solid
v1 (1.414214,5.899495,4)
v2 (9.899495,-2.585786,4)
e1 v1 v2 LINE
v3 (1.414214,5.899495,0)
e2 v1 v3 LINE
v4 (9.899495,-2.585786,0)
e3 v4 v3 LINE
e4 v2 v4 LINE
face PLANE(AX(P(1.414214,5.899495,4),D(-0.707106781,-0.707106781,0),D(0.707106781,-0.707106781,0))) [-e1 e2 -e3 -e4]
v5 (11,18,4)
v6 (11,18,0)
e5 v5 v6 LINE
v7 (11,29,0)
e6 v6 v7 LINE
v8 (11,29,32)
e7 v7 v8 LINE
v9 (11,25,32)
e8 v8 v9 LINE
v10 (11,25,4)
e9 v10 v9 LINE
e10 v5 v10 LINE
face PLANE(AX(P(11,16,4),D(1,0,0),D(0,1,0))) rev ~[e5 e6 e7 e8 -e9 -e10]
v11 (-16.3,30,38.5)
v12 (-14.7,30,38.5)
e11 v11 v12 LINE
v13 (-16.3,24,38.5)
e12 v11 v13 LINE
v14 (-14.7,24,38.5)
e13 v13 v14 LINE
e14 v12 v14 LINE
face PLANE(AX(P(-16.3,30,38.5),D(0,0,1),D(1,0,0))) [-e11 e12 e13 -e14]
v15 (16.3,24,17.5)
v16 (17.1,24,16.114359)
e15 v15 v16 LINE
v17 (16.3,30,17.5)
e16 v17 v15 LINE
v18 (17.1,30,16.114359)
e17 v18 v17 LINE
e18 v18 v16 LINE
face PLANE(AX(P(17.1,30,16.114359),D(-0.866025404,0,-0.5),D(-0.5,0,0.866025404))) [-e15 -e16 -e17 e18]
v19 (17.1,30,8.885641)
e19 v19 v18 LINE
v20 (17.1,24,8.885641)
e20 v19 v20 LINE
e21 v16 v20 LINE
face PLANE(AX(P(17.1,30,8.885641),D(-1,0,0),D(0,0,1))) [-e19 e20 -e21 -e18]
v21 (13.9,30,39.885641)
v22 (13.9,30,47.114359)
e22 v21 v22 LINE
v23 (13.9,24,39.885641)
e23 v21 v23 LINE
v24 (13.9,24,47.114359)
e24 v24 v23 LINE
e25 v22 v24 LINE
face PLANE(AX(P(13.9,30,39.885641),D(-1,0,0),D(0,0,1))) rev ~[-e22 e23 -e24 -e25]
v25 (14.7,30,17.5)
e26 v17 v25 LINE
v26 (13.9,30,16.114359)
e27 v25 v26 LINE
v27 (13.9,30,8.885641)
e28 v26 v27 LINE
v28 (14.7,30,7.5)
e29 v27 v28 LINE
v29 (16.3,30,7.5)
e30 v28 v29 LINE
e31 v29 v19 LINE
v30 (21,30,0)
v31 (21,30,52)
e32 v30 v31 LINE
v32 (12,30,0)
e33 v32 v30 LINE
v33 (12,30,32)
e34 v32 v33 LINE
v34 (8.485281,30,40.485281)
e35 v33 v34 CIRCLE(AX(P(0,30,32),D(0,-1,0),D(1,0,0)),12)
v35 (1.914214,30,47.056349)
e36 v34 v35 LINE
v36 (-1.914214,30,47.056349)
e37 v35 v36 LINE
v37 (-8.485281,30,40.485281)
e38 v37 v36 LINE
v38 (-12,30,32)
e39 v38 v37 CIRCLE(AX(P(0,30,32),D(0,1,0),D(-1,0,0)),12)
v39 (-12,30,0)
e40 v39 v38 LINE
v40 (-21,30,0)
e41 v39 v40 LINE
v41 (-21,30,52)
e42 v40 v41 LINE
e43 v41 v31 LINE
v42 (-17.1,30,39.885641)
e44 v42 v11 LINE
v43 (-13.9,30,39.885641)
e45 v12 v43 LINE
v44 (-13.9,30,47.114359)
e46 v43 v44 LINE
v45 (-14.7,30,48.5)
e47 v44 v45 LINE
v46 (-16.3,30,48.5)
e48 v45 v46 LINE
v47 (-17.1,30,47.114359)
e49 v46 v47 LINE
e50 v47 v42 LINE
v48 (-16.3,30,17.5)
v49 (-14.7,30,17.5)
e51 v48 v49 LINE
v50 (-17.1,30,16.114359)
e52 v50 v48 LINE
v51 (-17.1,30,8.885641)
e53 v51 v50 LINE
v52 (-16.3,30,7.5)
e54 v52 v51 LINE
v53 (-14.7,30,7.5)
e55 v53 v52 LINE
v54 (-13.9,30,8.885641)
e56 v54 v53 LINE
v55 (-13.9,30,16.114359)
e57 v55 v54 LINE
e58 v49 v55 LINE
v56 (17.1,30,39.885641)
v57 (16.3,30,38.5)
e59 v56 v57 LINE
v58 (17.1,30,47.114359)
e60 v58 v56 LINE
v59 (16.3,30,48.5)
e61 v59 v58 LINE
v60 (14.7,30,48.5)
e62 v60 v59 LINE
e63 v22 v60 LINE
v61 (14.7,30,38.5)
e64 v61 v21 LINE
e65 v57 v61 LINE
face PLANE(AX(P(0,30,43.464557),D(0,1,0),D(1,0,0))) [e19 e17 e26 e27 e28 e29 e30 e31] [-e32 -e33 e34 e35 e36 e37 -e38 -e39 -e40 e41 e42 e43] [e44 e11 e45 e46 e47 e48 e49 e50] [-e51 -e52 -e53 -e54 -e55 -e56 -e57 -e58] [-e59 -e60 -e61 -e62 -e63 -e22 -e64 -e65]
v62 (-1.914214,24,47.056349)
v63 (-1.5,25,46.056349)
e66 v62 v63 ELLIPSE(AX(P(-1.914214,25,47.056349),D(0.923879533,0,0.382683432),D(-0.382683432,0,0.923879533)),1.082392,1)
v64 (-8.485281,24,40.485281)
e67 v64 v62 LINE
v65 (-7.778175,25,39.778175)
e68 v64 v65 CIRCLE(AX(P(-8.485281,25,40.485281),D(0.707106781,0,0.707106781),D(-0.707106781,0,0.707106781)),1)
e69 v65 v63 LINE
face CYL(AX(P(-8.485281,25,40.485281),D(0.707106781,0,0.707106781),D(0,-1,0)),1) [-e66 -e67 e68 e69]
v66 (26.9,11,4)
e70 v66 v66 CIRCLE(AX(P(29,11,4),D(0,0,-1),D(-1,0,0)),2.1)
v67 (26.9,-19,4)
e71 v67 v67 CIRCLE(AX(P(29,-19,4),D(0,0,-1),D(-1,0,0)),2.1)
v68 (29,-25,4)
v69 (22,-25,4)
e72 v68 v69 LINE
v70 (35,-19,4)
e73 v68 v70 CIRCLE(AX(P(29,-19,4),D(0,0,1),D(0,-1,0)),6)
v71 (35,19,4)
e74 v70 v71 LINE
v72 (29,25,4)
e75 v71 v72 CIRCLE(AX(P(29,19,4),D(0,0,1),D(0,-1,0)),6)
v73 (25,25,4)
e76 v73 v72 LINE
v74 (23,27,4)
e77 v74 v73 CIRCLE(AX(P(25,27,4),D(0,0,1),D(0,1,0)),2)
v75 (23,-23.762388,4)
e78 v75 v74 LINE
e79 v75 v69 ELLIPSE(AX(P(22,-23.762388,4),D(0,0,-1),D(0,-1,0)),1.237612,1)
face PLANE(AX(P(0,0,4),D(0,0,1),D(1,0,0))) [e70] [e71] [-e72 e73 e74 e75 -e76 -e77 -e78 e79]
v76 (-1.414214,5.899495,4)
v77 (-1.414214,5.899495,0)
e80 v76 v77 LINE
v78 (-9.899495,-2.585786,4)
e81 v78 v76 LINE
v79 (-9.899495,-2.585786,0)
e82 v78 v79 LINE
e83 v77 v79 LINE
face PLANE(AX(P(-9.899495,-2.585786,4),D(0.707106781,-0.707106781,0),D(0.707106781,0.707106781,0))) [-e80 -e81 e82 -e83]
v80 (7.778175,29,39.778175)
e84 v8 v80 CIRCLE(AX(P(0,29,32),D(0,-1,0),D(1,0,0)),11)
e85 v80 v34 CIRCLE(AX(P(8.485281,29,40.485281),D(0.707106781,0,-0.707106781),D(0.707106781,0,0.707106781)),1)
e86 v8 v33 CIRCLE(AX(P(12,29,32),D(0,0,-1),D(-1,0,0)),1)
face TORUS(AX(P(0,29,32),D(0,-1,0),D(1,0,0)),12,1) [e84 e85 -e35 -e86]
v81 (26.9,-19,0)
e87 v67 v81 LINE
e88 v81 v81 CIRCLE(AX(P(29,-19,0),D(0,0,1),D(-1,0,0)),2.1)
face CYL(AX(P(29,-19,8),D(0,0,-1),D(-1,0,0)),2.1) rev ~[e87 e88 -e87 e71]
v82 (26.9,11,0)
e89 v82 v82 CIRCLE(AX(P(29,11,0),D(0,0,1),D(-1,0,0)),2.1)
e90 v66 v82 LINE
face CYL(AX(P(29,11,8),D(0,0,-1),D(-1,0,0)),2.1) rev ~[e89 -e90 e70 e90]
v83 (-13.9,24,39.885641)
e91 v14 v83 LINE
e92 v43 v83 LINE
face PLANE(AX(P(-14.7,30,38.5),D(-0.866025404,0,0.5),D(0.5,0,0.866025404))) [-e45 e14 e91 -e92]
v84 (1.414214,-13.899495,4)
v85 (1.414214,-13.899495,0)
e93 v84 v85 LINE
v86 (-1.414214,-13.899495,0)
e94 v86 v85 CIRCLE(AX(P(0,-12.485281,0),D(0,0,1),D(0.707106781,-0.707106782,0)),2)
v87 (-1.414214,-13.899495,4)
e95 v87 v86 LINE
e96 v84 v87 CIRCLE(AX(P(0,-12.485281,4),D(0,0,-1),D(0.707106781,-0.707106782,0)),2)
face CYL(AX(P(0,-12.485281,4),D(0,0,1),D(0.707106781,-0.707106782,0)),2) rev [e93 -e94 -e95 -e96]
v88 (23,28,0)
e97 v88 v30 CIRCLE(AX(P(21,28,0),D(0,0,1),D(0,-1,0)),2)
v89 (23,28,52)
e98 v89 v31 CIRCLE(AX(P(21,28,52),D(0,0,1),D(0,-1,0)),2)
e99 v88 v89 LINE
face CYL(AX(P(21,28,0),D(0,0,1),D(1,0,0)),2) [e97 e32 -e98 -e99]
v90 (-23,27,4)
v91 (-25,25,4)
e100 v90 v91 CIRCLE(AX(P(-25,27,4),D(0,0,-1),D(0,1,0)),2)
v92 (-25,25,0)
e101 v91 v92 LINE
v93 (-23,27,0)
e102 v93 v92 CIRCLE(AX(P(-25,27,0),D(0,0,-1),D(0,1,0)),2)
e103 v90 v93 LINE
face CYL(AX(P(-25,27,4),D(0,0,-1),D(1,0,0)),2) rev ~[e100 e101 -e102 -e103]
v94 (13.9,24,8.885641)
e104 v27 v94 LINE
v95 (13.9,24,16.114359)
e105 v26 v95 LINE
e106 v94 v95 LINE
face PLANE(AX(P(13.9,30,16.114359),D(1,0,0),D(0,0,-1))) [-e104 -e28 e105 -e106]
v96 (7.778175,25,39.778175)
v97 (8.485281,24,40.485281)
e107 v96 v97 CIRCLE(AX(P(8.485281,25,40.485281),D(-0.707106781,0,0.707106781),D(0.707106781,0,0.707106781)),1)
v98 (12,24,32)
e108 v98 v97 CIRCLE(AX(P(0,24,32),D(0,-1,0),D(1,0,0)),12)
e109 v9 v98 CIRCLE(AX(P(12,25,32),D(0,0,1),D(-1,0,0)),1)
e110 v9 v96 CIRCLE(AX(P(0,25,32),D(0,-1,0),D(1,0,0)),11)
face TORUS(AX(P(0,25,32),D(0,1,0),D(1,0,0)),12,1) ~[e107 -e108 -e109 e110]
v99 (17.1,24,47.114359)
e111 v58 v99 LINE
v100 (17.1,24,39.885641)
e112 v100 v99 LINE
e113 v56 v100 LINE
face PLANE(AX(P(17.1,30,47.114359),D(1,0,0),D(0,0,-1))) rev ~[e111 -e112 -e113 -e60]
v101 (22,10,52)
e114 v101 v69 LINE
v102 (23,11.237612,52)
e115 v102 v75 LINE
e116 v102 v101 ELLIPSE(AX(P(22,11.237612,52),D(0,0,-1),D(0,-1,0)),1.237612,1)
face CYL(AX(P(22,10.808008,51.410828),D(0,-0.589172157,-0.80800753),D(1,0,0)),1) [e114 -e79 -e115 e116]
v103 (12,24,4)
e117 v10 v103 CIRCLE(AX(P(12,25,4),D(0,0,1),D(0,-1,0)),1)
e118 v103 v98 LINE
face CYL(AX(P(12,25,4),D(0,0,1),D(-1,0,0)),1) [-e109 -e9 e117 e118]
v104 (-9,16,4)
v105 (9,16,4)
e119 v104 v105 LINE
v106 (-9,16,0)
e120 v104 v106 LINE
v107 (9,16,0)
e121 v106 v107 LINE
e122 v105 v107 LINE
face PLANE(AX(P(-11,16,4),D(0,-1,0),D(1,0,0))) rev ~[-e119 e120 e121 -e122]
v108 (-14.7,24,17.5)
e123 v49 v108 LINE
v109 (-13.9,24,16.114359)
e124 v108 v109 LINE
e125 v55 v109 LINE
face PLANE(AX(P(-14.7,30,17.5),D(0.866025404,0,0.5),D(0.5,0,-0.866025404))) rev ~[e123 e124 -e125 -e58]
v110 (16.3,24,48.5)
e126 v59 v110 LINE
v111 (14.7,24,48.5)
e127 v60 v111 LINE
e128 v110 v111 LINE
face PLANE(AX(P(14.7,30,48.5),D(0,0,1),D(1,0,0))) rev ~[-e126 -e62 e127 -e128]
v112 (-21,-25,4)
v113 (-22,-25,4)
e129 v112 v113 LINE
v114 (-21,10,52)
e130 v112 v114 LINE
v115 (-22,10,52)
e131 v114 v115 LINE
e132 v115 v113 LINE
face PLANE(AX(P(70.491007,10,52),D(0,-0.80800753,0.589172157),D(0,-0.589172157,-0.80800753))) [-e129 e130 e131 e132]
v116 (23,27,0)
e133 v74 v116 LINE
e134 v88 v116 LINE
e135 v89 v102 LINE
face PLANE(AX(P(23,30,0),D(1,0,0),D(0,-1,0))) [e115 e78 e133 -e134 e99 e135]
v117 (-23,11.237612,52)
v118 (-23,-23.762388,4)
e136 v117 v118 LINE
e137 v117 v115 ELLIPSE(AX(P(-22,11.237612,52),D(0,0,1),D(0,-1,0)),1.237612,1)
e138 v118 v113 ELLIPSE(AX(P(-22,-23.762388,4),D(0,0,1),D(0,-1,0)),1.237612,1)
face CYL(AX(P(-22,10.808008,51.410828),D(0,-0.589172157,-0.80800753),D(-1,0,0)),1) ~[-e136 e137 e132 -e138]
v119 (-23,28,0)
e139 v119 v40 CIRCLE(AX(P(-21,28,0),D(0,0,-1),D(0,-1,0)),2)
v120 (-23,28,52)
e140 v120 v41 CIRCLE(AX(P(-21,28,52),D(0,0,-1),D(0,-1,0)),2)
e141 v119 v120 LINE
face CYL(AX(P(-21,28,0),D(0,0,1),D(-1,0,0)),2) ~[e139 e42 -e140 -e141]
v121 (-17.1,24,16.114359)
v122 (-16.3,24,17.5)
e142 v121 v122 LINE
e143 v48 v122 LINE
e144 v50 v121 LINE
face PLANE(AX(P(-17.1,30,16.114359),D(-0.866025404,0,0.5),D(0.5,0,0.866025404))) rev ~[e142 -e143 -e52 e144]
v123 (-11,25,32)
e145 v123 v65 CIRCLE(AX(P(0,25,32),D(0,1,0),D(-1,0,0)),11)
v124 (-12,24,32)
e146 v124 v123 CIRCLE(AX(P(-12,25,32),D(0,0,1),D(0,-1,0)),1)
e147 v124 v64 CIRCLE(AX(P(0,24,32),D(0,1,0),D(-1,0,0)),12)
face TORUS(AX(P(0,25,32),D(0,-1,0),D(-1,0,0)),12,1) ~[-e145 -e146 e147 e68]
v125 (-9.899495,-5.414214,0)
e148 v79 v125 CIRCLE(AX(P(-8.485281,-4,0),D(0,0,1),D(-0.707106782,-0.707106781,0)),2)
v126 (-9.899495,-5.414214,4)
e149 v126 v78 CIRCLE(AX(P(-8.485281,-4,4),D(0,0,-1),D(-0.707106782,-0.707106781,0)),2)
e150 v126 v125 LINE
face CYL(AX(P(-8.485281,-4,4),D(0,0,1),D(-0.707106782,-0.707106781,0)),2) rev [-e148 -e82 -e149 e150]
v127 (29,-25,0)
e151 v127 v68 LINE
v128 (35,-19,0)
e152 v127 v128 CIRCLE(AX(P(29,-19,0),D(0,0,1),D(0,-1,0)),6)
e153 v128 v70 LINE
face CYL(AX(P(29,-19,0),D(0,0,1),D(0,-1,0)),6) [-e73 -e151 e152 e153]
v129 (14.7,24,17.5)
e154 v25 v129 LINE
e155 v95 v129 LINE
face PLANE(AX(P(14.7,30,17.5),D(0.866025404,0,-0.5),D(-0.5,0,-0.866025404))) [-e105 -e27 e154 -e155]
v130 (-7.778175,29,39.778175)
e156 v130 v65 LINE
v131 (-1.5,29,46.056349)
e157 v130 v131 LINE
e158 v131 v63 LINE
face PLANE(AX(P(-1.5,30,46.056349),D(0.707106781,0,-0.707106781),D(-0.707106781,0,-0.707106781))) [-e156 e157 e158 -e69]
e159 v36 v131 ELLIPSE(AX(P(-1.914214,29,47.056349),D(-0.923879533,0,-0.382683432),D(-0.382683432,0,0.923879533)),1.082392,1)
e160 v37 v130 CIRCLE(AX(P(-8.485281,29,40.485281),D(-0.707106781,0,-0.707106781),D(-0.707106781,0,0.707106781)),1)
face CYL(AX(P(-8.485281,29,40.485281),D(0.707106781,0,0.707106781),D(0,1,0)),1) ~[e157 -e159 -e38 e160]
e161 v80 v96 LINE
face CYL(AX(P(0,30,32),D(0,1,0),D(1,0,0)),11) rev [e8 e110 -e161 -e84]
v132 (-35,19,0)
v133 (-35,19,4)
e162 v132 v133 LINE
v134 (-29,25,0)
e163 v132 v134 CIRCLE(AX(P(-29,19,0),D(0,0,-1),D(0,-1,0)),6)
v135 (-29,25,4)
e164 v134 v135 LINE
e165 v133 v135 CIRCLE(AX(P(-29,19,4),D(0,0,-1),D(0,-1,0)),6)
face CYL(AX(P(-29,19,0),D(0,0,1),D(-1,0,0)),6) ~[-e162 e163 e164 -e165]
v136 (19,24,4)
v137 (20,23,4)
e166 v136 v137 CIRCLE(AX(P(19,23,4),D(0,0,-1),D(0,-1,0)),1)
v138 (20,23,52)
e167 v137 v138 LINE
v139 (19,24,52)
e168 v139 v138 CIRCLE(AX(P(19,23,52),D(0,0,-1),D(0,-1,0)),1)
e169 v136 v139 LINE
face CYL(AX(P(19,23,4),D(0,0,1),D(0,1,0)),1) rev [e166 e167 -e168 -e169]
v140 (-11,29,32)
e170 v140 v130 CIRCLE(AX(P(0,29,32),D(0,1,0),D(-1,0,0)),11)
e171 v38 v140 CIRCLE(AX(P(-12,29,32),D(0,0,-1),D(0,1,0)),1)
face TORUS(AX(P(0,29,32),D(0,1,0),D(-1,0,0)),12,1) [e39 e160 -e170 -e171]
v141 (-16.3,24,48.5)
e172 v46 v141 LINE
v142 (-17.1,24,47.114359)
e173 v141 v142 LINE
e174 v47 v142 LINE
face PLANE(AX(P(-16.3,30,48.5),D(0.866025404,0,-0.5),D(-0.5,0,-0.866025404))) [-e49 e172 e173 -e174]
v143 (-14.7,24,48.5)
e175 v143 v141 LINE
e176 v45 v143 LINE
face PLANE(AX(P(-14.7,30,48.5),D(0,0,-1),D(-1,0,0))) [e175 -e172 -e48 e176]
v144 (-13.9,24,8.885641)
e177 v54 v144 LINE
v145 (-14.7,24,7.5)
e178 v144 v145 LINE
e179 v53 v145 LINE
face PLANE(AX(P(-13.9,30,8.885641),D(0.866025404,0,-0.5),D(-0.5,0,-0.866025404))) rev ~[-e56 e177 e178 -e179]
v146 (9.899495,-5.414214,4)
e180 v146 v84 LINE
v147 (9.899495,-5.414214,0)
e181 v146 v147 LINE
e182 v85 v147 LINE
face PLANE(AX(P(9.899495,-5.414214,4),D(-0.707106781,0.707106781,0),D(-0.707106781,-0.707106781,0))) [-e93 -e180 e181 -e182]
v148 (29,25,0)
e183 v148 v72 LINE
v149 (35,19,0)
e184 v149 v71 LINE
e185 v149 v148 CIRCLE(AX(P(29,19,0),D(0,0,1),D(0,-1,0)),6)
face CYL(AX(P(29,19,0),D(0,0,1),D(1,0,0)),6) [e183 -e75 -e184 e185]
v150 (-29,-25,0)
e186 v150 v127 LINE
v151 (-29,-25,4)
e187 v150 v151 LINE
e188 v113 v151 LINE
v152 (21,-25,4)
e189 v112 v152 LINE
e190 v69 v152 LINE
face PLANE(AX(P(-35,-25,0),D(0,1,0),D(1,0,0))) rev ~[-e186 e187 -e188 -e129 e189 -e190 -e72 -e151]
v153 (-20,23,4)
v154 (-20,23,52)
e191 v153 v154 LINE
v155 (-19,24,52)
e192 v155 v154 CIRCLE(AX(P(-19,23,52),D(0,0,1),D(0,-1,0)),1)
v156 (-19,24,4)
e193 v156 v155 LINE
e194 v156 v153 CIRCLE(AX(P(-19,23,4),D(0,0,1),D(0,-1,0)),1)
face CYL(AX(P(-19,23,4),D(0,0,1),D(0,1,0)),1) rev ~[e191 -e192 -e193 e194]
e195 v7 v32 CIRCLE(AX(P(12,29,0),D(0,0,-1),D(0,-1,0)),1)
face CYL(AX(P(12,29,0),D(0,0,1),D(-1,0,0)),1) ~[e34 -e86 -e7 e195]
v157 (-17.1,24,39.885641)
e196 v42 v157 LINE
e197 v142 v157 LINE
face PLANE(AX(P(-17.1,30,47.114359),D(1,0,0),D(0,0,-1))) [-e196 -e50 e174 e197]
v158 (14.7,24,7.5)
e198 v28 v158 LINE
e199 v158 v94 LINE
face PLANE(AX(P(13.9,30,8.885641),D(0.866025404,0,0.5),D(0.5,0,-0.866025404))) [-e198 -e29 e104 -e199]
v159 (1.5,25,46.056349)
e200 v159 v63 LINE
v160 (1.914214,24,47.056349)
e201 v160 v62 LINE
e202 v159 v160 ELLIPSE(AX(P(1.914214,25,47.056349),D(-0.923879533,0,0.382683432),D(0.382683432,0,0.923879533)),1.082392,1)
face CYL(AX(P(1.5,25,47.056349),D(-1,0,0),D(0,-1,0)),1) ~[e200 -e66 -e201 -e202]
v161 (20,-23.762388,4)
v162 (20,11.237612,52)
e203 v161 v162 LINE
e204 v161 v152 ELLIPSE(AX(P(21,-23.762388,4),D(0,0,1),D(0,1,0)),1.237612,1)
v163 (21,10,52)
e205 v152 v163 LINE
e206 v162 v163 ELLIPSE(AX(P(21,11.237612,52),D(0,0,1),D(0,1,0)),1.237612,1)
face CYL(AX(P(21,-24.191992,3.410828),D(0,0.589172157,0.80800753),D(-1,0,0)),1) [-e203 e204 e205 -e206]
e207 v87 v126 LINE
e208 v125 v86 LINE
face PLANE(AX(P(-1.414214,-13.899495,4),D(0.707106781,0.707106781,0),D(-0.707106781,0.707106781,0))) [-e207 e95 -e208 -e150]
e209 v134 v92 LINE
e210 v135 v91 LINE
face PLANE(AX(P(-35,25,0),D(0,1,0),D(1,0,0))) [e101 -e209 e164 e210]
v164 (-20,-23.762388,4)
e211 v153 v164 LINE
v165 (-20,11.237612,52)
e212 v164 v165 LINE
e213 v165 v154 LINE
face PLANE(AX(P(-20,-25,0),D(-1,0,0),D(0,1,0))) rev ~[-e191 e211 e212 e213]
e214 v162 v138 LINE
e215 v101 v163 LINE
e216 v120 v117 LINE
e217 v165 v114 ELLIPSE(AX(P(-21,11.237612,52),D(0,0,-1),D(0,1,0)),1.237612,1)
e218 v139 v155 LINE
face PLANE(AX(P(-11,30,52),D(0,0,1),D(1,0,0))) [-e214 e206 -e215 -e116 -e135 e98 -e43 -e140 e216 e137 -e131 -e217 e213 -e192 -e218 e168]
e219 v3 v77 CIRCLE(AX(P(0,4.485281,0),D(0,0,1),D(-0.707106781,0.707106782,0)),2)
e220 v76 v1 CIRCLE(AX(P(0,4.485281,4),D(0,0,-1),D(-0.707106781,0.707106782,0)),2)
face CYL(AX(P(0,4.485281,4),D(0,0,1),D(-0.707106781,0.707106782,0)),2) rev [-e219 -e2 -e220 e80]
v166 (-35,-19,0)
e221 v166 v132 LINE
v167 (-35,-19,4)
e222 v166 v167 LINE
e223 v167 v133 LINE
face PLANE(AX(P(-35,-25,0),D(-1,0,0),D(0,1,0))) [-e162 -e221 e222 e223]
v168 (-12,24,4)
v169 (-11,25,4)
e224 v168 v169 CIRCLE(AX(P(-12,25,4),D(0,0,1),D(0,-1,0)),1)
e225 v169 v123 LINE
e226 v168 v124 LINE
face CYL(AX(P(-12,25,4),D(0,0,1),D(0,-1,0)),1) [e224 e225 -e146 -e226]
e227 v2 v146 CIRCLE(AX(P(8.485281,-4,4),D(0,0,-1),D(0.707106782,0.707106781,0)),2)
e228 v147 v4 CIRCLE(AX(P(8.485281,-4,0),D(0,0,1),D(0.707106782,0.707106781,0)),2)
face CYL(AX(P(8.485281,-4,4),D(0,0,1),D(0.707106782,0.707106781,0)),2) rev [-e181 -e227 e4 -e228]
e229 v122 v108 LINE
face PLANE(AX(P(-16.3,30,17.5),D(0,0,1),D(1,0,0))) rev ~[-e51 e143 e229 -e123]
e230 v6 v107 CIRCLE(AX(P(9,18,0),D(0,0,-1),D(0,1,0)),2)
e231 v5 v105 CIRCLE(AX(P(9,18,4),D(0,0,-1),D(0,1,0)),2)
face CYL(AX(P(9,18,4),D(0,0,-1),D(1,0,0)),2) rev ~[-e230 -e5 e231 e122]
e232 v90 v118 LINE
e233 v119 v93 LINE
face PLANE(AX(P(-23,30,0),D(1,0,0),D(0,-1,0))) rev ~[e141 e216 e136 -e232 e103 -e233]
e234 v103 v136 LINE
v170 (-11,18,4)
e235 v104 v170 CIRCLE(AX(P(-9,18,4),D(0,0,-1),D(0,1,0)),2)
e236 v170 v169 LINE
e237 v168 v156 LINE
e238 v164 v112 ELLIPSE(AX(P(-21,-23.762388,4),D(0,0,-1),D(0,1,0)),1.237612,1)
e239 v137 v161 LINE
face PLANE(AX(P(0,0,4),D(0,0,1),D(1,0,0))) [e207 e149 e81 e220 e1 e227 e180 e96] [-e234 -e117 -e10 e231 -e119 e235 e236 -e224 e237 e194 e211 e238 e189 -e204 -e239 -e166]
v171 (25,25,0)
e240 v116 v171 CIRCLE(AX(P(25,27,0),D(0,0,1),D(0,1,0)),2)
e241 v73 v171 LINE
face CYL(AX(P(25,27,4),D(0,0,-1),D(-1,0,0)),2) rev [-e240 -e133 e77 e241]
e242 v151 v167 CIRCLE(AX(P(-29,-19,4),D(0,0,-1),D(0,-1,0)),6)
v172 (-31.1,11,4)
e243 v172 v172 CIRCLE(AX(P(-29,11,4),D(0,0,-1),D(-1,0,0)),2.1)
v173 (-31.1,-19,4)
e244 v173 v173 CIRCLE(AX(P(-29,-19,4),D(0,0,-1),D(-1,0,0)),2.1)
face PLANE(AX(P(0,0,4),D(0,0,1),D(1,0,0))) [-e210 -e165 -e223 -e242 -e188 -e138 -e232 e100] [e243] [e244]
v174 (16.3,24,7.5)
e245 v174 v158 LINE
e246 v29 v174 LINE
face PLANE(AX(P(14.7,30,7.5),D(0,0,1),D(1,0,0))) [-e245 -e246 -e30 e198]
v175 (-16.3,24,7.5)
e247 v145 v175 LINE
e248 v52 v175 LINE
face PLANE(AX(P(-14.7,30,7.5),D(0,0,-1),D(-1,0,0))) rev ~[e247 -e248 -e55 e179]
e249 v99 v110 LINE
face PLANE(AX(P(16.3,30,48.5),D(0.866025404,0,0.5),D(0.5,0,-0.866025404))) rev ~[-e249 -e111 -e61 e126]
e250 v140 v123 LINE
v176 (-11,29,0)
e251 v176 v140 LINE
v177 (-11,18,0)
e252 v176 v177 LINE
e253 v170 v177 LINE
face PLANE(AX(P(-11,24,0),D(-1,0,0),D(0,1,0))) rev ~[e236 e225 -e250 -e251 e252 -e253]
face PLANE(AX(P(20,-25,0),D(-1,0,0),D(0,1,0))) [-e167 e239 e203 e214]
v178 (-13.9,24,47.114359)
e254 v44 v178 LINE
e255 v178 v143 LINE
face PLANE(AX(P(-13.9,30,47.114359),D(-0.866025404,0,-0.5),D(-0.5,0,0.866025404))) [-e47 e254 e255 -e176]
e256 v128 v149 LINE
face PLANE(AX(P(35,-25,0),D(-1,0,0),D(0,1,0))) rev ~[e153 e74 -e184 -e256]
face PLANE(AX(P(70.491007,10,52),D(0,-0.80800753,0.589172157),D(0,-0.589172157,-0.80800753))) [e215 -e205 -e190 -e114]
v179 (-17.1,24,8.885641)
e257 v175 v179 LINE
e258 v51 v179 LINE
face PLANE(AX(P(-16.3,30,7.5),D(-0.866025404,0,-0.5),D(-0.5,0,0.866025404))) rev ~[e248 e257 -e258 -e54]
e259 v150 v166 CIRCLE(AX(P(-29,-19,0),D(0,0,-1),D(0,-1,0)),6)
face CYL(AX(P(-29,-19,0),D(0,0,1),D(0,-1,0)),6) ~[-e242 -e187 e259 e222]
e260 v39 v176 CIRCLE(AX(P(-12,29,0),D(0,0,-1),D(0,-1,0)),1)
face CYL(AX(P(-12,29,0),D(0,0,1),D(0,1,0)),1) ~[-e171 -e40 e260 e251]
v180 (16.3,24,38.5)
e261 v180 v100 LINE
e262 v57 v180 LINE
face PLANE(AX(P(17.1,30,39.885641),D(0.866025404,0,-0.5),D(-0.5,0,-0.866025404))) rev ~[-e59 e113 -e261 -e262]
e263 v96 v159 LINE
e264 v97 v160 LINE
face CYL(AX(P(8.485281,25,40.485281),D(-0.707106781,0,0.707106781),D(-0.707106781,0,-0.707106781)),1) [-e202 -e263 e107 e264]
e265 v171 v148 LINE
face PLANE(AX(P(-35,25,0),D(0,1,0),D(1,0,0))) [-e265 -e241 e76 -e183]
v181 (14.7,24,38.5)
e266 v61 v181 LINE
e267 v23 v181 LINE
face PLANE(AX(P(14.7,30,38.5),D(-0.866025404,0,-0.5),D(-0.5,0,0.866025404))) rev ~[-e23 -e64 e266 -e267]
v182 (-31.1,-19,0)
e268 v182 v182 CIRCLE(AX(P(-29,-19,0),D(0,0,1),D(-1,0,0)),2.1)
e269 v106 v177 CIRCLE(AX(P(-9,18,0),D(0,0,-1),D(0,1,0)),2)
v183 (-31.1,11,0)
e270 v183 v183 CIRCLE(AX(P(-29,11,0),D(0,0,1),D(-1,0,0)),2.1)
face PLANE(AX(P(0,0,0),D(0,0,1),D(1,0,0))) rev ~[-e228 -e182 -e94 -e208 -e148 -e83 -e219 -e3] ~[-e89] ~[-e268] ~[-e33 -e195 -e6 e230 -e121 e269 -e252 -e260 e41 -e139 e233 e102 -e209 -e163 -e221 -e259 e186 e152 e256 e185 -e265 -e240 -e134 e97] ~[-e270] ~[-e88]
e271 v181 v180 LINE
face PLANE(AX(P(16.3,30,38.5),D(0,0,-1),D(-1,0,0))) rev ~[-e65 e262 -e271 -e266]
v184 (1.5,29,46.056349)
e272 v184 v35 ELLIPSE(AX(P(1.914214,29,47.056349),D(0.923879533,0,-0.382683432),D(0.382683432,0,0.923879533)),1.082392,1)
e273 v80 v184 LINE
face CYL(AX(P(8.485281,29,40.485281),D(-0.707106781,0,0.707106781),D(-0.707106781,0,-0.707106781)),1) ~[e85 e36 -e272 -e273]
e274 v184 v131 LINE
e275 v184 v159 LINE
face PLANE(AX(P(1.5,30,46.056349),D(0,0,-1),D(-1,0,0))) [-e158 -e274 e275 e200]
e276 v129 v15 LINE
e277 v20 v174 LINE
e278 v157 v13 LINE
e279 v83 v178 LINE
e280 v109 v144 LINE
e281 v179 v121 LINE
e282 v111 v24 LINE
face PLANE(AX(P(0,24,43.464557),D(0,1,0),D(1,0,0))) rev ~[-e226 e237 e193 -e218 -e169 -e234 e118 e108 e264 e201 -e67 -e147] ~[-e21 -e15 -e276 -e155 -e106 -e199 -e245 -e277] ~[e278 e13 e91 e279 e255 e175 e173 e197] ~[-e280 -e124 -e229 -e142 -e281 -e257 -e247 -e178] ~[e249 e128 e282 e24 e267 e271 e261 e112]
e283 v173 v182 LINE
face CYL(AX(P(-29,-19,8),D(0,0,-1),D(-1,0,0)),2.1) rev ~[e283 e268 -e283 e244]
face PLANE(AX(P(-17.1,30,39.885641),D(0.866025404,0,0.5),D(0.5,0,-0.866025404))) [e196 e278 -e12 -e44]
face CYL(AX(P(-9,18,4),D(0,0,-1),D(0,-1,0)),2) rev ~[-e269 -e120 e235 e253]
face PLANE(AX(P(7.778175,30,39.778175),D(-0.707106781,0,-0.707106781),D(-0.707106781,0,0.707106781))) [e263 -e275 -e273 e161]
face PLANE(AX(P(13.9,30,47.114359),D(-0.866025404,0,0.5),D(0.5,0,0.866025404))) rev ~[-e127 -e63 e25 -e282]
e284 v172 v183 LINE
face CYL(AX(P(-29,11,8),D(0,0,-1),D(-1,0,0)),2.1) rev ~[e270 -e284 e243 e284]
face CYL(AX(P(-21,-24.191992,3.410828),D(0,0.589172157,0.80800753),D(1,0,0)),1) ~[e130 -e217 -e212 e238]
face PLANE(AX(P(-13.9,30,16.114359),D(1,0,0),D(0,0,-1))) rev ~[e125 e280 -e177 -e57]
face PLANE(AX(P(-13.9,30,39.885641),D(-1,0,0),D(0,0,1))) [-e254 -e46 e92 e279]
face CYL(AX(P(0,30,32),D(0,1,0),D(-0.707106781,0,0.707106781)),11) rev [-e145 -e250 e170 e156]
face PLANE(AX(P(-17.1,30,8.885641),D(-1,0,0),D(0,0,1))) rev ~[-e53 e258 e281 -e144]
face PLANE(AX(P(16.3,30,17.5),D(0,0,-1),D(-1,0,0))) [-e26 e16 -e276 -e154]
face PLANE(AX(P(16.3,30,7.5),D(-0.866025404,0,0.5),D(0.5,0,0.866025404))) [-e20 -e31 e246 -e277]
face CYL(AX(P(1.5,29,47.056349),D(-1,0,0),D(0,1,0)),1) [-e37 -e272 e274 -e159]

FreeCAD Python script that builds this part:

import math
import FreeCAD as App
import Part
import Sketcher

V = App.Vector
Q = App.Units.Quantity


def edges_at(feature, points):
    """Names of the edges that pass closest to the given points."""
    edges = feature.Shape.Edges
    near = lambda p: min(range(len(edges)), key=lambda i: edges[i].distToShape(Part.Vertex(*p))[0])
    return sorted({f"Edge{near(p) + 1}" for p in points})

doc = App.newDocument("Part")
body = doc.addObject("PartDesign::Body", "Body")

# Sketch on XY plane
sketch1 = body.newObject("Sketcher::SketchObject", "Sketch")
sketch1.AttachmentSupport = (doc.getObject("XY_Plane"), [""])
sketch1.MapMode = "FlatFace"
sketch1.addGeometry([
    Part.LineSegment(V(-35, 25, 0), V(-35, -25, 0)),
    Part.LineSegment(V(-35, -25, 0), V(35, -25, 0)),
    Part.LineSegment(V(35, -25, 0), V(35, 25, 0)),
    Part.LineSegment(V(35, 25, 0), V(-35, 25, 0)),
], False)
sketch1.addConstraint([
    Sketcher.Constraint("Coincident", 0, 2, 1, 1),
    Sketcher.Constraint("Coincident", 1, 2, 2, 1),
    Sketcher.Constraint("Coincident", 2, 2, 3, 1),
    Sketcher.Constraint("Coincident", 3, 2, 0, 1),
    Sketcher.Constraint("Vertical", 0),
    Sketcher.Constraint("Horizontal", 1),
    Sketcher.Constraint("Vertical", 2),
    Sketcher.Constraint("Horizontal", 3),
    Sketcher.Constraint("Symmetric", 0, 2, 2, 2, -1, 1),
    Sketcher.Constraint("DistanceX", 1, 1, 1, 2, Q("70 mm")),
    Sketcher.Constraint("DistanceY", 0, 2, 0, 1, Q("50 mm")),
])
pad1 = body.newObject("PartDesign::Pad", "Pad")
pad1.Profile = sketch1
pad1.Length = 4

# Sketch on XY plane
sketch2 = body.newObject("Sketcher::SketchObject", "Sketch001")
sketch2.AttachmentSupport = (doc.getObject("XY_Plane"), [""])
sketch2.MapMode = "FlatFace"
sketch2.addGeometry([
    Part.LineSegment(V(-23, -25, 0), V(-20, -25, 0)),  # 0
    Part.LineSegment(V(-20, -25, 0), V(-20, 24, 0)),  # 1
    Part.LineSegment(V(-20, 24, 0), V(-11, 24, 0)),  # 2
    Part.LineSegment(V(-11, 24, 0), V(-11, 30, 0)),  # 3
    Part.LineSegment(V(-11, 30, 0), V(-23, 30, 0)),  # 4
    Part.LineSegment(V(-23, 30, 0), V(-23, -25, 0)),  # 5
    Part.LineSegment(V(11, 30, 0), V(11, 24, 0)),  # 6
    Part.LineSegment(V(11, 24, 0), V(20, 24, 0)),  # 7
    Part.LineSegment(V(20, 24, 0), V(20, -25, 0)),  # 8
    Part.LineSegment(V(20, -25, 0), V(23, -25, 0)),  # 9
    Part.LineSegment(V(23, -25, 0), V(23, 30, 0)),  # 10
    Part.LineSegment(V(23, 30, 0), V(11, 30, 0)),  # 11
], False)
sketch2.addConstraint([
    Sketcher.Constraint("Coincident", 0, 2, 1, 1),
    Sketcher.Constraint("Coincident", 1, 2, 2, 1),
    Sketcher.Constraint("Coincident", 2, 2, 3, 1),
    Sketcher.Constraint("Coincident", 3, 2, 4, 1),
    Sketcher.Constraint("Coincident", 4, 2, 5, 1),
    Sketcher.Constraint("Coincident", 5, 2, 0, 1),
    Sketcher.Constraint("Coincident", 6, 2, 7, 1),
    Sketcher.Constraint("Coincident", 7, 2, 8, 1),
    Sketcher.Constraint("Coincident", 8, 2, 9, 1),
    Sketcher.Constraint("Coincident", 9, 2, 10, 1),
    Sketcher.Constraint("Coincident", 10, 2, 11, 1),
    Sketcher.Constraint("Coincident", 11, 2, 6, 1),
    Sketcher.Constraint("Horizontal", 0),
    Sketcher.Constraint("Vertical", 1),
    Sketcher.Constraint("Horizontal", 2),
    Sketcher.Constraint("Vertical", 3),
    Sketcher.Constraint("Horizontal", 4),
    Sketcher.Constraint("Vertical", 5),
    Sketcher.Constraint("Vertical", 6),
    Sketcher.Constraint("Horizontal", 7),
    Sketcher.Constraint("Vertical", 8),
    Sketcher.Constraint("Horizontal", 9),
    Sketcher.Constraint("Vertical", 10),
    Sketcher.Constraint("Horizontal", 11),
    Sketcher.Constraint("Symmetric", 2, 2, 6, 2, -2),
    Sketcher.Constraint("Symmetric", 0, 2, 8, 2, -2),
    Sketcher.Constraint("Symmetric", 4, 2, 10, 2, -2),
    Sketcher.Constraint("DistanceX", 0, 1, 0, 2, Q("3 mm")),
    Sketcher.Constraint("DistanceX", 2, 1, 2, 2, Q("9 mm")),
    Sketcher.Constraint("DistanceY", 1, 1, 1, 2, Q("49 mm")),
    Sketcher.Constraint("DistanceY", 3, 1, 3, 2, Q("6 mm")),
    Sketcher.Constraint("DistanceX", 0, 2, -1, 1, Q("20 mm")),
    Sketcher.Constraint("DistanceY", 0, 2, -1, 1, Q("25 mm")),
])
pad2 = body.newObject("PartDesign::Pad", "Pad001")
pad2.Profile = sketch2
pad2.Length = 52

# Sketch on YZ plane
sketch3 = body.newObject("Sketcher::SketchObject", "Sketch002")
sketch3.AttachmentSupport = (doc.getObject("YZ_Plane"), [""])
sketch3.MapMode = "FlatFace"
sketch3.addGeometry([
    Part.LineSegment(V(102, 178, 0), V(10, 52, 0)),  # 0
    Part.LineSegment(V(10, 52, 0), V(-25, 4, 0)),  # 1
    Part.LineSegment(V(-25, 4, 0), V(-117, -122, 0)),  # 2
    Part.LineSegment(V(-117, -122, 0), V(-369, 62, 0)),  # 3
    Part.LineSegment(V(-369, 62, 0), V(-150, 362, 0)),  # 4
    Part.LineSegment(V(-150, 362, 0), V(102, 178, 0)),  # 5
], False)
sketch3.addConstraint([
    Sketcher.Constraint("Coincident", 0, 2, 1, 1),
    Sketcher.Constraint("Coincident", 1, 2, 2, 1),
    Sketcher.Constraint("Coincident", 2, 2, 3, 1),
    Sketcher.Constraint("Coincident", 3, 2, 4, 1),
    Sketcher.Constraint("Coincident", 4, 2, 5, 1),
    Sketcher.Constraint("Coincident", 5, 2, 0, 1),
    Sketcher.Constraint("Parallel", 0, 1),
    Sketcher.Constraint("Parallel", 1, 2),
    Sketcher.Constraint("Perpendicular", 2, 3),
    Sketcher.Constraint("Perpendicular", 3, 4),
    Sketcher.Constraint("Perpendicular", 4, 5),
    Sketcher.Constraint("Equal", 0, 2),
    Sketcher.Constraint("Distance", 0, Q("156 mm")),
    Sketcher.Constraint("Distance", 3, Q("312 mm")),
    Sketcher.Constraint("DistanceX", -1, 1, 0, 2, Q("10 mm")),
    Sketcher.Constraint("DistanceY", -1, 1, 0, 2, Q("52 mm")),
    Sketcher.Constraint("DistanceX", 1, 2, -1, 1, Q("25 mm")),
    Sketcher.Constraint("DistanceY", -1, 1, 1, 2, Q("4 mm")),
])
pocket1 = body.newObject("PartDesign::Pocket", "Pocket")
pocket1.Profile = sketch3
pocket1.Type = "ThroughAll"
pocket1.Midplane = True
doc.recompute()

fillet = body.newObject("PartDesign::Fillet", "Fillet")
fillet.Base = (pocket1, edges_at(pocket1, [
    (35, -25, 2),
    (-35, -25, 2),
    (-35, 25, 2),
    (35, 25, 2),
]))
fillet.Radius = 6

# Sketch on XZ plane
sketch4 = body.newObject("Sketcher::SketchObject", "Sketch003")
sketch4.AttachmentSupport = (doc.getObject("XZ_Plane"), [""])
sketch4.MapMode = "FlatFace"
sketch4.AttachmentOffset = App.Placement(V(0, 0, -30), App.Rotation())
sketch4.addGeometry([
    Part.LineSegment(V(-17.1, 39.9, 0), V(-17.1, 47.1, 0)),  # 0
    Part.LineSegment(V(-17.1, 47.1, 0), V(-16.3, 48.5, 0)),  # 1
    Part.LineSegment(V(-16.3, 48.5, 0), V(-14.7, 48.5, 0)),  # 2
    Part.LineSegment(V(-14.7, 48.5, 0), V(-13.9, 47.1, 0)),  # 3
    Part.LineSegment(V(-13.9, 47.1, 0), V(-13.9, 39.9, 0)),  # 4
    Part.LineSegment(V(-13.9, 39.9, 0), V(-14.7, 38.5, 0)),  # 5
    Part.LineSegment(V(-14.7, 38.5, 0), V(-16.3, 38.5, 0)),  # 6
    Part.LineSegment(V(-16.3, 38.5, 0), V(-17.1, 39.9, 0)),  # 7
    Part.LineSegment(V(16.3, 48.5, 0), V(17.1, 47.1, 0)),  # 8
    Part.LineSegment(V(17.1, 47.1, 0), V(17.1, 39.9, 0)),  # 9
    Part.LineSegment(V(17.1, 39.9, 0), V(16.3, 38.5, 0)),  # 10
    Part.LineSegment(V(16.3, 38.5, 0), V(14.7, 38.5, 0)),  # 11
    Part.LineSegment(V(14.7, 38.5, 0), V(13.9, 39.9, 0)),  # 12
    Part.LineSegment(V(13.9, 39.9, 0), V(13.9, 47.1, 0)),  # 13
    Part.LineSegment(V(13.9, 47.1, 0), V(14.7, 48.5, 0)),  # 14
    Part.LineSegment(V(14.7, 48.5, 0), V(16.3, 48.5, 0)),  # 15
    Part.LineSegment(V(17.1, 16.1, 0), V(17.1, 8.9, 0)),  # 16
    Part.LineSegment(V(17.1, 8.9, 0), V(16.3, 7.5, 0)),  # 17
    Part.LineSegment(V(16.3, 7.5, 0), V(14.7, 7.5, 0)),  # 18
    Part.LineSegment(V(14.7, 7.5, 0), V(13.9, 8.9, 0)),  # 19
    Part.LineSegment(V(13.9, 8.9, 0), V(13.9, 16.1, 0)),  # 20
    Part.LineSegment(V(13.9, 16.1, 0), V(14.7, 17.5, 0)),  # 21
    Part.LineSegment(V(14.7, 17.5, 0), V(16.3, 17.5, 0)),  # 22
    Part.LineSegment(V(16.3, 17.5, 0), V(17.1, 16.1, 0)),  # 23
    Part.LineSegment(V(-16.3, 7.5, 0), V(-17.1, 8.9, 0)),  # 24
    Part.LineSegment(V(-17.1, 8.9, 0), V(-17.1, 16.1, 0)),  # 25
    Part.LineSegment(V(-17.1, 16.1, 0), V(-16.3, 17.5, 0)),  # 26
    Part.LineSegment(V(-16.3, 17.5, 0), V(-14.7, 17.5, 0)),  # 27
    Part.LineSegment(V(-14.7, 17.5, 0), V(-13.9, 16.1, 0)),  # 28
    Part.LineSegment(V(-13.9, 16.1, 0), V(-13.9, 8.9, 0)),  # 29
    Part.LineSegment(V(-13.9, 8.9, 0), V(-14.7, 7.5, 0)),  # 30
    Part.LineSegment(V(-14.7, 7.5, 0), V(-16.3, 7.5, 0)),  # 31
], False)
sketch4.addConstraint([
    Sketcher.Constraint("Coincident", 0, 2, 1, 1),
    Sketcher.Constraint("Coincident", 1, 2, 2, 1),
    Sketcher.Constraint("Coincident", 2, 2, 3, 1),
    Sketcher.Constraint("Coincident", 3, 2, 4, 1),
    Sketcher.Constraint("Coincident", 4, 2, 5, 1),
    Sketcher.Constraint("Coincident", 5, 2, 6, 1),
    Sketcher.Constraint("Coincident", 6, 2, 7, 1),
    Sketcher.Constraint("Coincident", 7, 2, 0, 1),
    Sketcher.Constraint("Coincident", 8, 2, 9, 1),
    Sketcher.Constraint("Coincident", 9, 2, 10, 1),
    Sketcher.Constraint("Coincident", 10, 2, 11, 1),
    Sketcher.Constraint("Coincident", 11, 2, 12, 1),
    Sketcher.Constraint("Coincident", 12, 2, 13, 1),
    Sketcher.Constraint("Coincident", 13, 2, 14, 1),
    Sketcher.Constraint("Coincident", 14, 2, 15, 1),
    Sketcher.Constraint("Coincident", 15, 2, 8, 1),
    Sketcher.Constraint("Coincident", 16, 2, 17, 1),
    Sketcher.Constraint("Coincident", 17, 2, 18, 1),
    Sketcher.Constraint("Coincident", 18, 2, 19, 1),
    Sketcher.Constraint("Coincident", 19, 2, 20, 1),
    Sketcher.Constraint("Coincident", 20, 2, 21, 1),
    Sketcher.Constraint("Coincident", 21, 2, 22, 1),
    Sketcher.Constraint("Coincident", 22, 2, 23, 1),
    Sketcher.Constraint("Coincident", 23, 2, 16, 1),
    Sketcher.Constraint("Coincident", 24, 2, 25, 1),
    Sketcher.Constraint("Coincident", 25, 2, 26, 1),
    Sketcher.Constraint("Coincident", 26, 2, 27, 1),
    Sketcher.Constraint("Coincident", 27, 2, 28, 1),
    Sketcher.Constraint("Coincident", 28, 2, 29, 1),
    Sketcher.Constraint("Coincident", 29, 2, 30, 1),
    Sketcher.Constraint("Coincident", 30, 2, 31, 1),
    Sketcher.Constraint("Coincident", 31, 2, 24, 1),
    Sketcher.Constraint("Vertical", 0),
    Sketcher.Constraint("Horizontal", 2),
    Sketcher.Constraint("Vertical", 4),
    Sketcher.Constraint("Horizontal", 6),
    Sketcher.Constraint("Vertical", 9),
    Sketcher.Constraint("Horizontal", 11),
    Sketcher.Constraint("Vertical", 13),
    Sketcher.Constraint("Horizontal", 15),
    Sketcher.Constraint("Vertical", 16),
    Sketcher.Constraint("Horizontal", 18),
    Sketcher.Constraint("Vertical", 20),
    Sketcher.Constraint("Horizontal", 22),
    Sketcher.Constraint("Vertical", 25),
    Sketcher.Constraint("Horizontal", 27),
    Sketcher.Constraint("Vertical", 29),
    Sketcher.Constraint("Horizontal", 31),
    Sketcher.Constraint("Symmetric", 0, 2, 8, 2, -2),
    Sketcher.Constraint("Symmetric", 6, 2, 10, 2, -2),
    Sketcher.Constraint("Symmetric", 4, 2, 12, 2, -2),
    Sketcher.Constraint("Symmetric", 2, 2, 14, 2, -2),
    Sketcher.Constraint("Symmetric", 16, 2, 24, 2, -2),
    Sketcher.Constraint("Symmetric", 22, 2, 26, 2, -2),
    Sketcher.Constraint("Symmetric", 20, 2, 28, 2, -2),
    Sketcher.Constraint("Symmetric", 18, 2, 30, 2, -2),
    Sketcher.Constraint("Parallel", 1, 5),
    Sketcher.Constraint("Parallel", 3, 7),
    Sketcher.Constraint("Parallel", 7, 8),
    Sketcher.Constraint("Parallel", 5, 10),
    Sketcher.Constraint("Parallel", 8, 12),
    Sketcher.Constraint("Parallel", 10, 14),
    Sketcher.Constraint("Parallel", 14, 17),
    Sketcher.Constraint("Parallel", 12, 19),
    Sketcher.Constraint("Parallel", 17, 21),
    Sketcher.Constraint("Parallel", 19, 23),
    Sketcher.Constraint("Parallel", 23, 24),
    Sketcher.Constraint("Parallel", 21, 26),
    Sketcher.Constraint("Parallel", 24, 28),
    Sketcher.Constraint("Parallel", 26, 30),
    Sketcher.Constraint("Horizontal", 0, 2, 3, 2),
    Sketcher.Constraint("Horizontal", 4, 2, 7, 2),
    Sketcher.Constraint("Horizontal", 7, 2, 9, 2),
    Sketcher.Constraint("Horizontal", 16, 2, 19, 2),
    Sketcher.Constraint("Horizontal", 20, 2, 23, 2),
    Sketcher.Constraint("Vertical", 2, 2, 5, 2),
    Sketcher.Constraint("Vertical", 9, 2, 16, 2),
    Sketcher.Constraint("Vertical", 15, 2, 17, 2),
    Sketcher.Constraint("Vertical", 14, 2, 18, 2),
    Sketcher.Constraint("Vertical", 18, 2, 21, 2),
    Sketcher.Constraint("Equal", 13, 16),
    Sketcher.Constraint("Angle", 1, Q("60 deg")),
    Sketcher.Constraint("DistanceX", 2, 1, 2, 2, Q("1.6 mm")),
    Sketcher.Constraint("DistanceY", 5, 2, 2, 2, Q("10 mm")),
    Sketcher.Constraint("DistanceX", 3, 2, 8, 2, Q("31 mm")),
    Sketcher.Constraint("DistanceY", 16, 2, 9, 2, Q("31 mm")),
    Sketcher.Constraint("Distance", 1, Q("1.6 mm")),
    Sketcher.Constraint("DistanceY", -1, 1, 1, 2, Q("48.5 mm")),
])
pocket2 = body.newObject("PartDesign::Pocket", "Pocket001")
pocket2.Profile = sketch4
pocket2.Type = "ThroughAll"
pocket2.Reversed = True

# Sketch on XY plane
sketch5 = body.newObject("Sketcher::SketchObject", "Sketch004")
sketch5.AttachmentSupport = (doc.getObject("XY_Plane"), [""])
sketch5.MapMode = "FlatFace"
sketch5.AttachmentOffset = App.Placement(V(0, 0, 4), App.Rotation())
sketch5.addGeometry([
    Part.LineSegment(V(-11, 25, 0), V(-11, 16, 0)),
    Part.LineSegment(V(-11, 16, 0), V(11, 16, 0)),
    Part.LineSegment(V(11, 16, 0), V(11, 25, 0)),
    Part.LineSegment(V(11, 25, 0), V(-11, 25, 0)),
], False)
sketch5.addConstraint([
    Sketcher.Constraint("Coincident", 0, 2, 1, 1),
    Sketcher.Constraint("Coincident", 1, 2, 2, 1),
    Sketcher.Constraint("Coincident", 2, 2, 3, 1),
    Sketcher.Constraint("Coincident", 3, 2, 0, 1),
    Sketcher.Constraint("Vertical", 0),
    Sketcher.Constraint("Horizontal", 1),
    Sketcher.Constraint("Vertical", 2),
    Sketcher.Constraint("Horizontal", 3),
    Sketcher.Constraint("DistanceX", 1, 1, 1, 2, Q("22 mm")),
    Sketcher.Constraint("DistanceY", 0, 2, 0, 1, Q("9 mm")),
    Sketcher.Constraint("DistanceX", 0, 2, -1, 1, Q("11 mm")),
    Sketcher.Constraint("DistanceY", -1, 1, 0, 2, Q("16 mm")),
])
pocket3 = body.newObject("PartDesign::Pocket", "Pocket002")
pocket3.Profile = sketch5
pocket3.Type = "ThroughAll"

# Sketch on XY plane
sketch6 = body.newObject("Sketcher::SketchObject", "Sketch005")
sketch6.AttachmentSupport = (doc.getObject("XY_Plane"), [""])
sketch6.MapMode = "FlatFace"
sketch6.AttachmentOffset = App.Placement(V(0, 0, 4), App.Rotation())
sketch6.addGeometry([
    Part.Circle(V(-29, -19, 0), V(0, 0, 1), 2.1),
    Part.Circle(V(-29, 11, 0), V(0, 0, 1), 2.1),
    Part.Circle(V(29, -19, 0), V(0, 0, 1), 2.1),
    Part.Circle(V(29, 11, 0), V(0, 0, 1), 2.1),
], False)
sketch6.addConstraint([
    Sketcher.Constraint("Equal", 0, 1),
    Sketcher.Constraint("Equal", 1, 2),
    Sketcher.Constraint("Equal", 2, 3),
    Sketcher.Constraint("Symmetric", 0, 3, 2, 3, -2),
    Sketcher.Constraint("Symmetric", 1, 3, 3, 3, -2),
    Sketcher.Constraint("Vertical", 0, 3, 1, 3),
    Sketcher.Constraint("Diameter", 0, Q("4.2 mm")),
    Sketcher.Constraint("DistanceX", 0, 3, -1, 1, Q("29 mm")),
    Sketcher.Constraint("DistanceY", 0, 3, -1, 1, Q("19 mm")),
    Sketcher.Constraint("DistanceY", -1, 1, 1, 3, Q("11 mm")),
])
doc.recompute()
hole = body.newObject("PartDesign::Hole", "Hole")
hole.Profile = sketch6
hole.ThreadType = "None"
hole.Diameter = 4.2
hole.DepthType = "Dimension"
hole.Depth = 4
hole.DrillPoint = "Angled"
hole.DrillPointAngle = 118

# Sketch on XY plane
sketch7 = body.newObject("Sketcher::SketchObject", "Sketch006")
sketch7.AttachmentSupport = (doc.getObject("XY_Plane"), [""])
sketch7.MapMode = "FlatFace"
sketch7.AttachmentOffset = App.Placement(V(0, 0, 4), App.Rotation())
sketch7.addGeometry([
    Part.LineSegment(V(9.9, -2.6, 0), V(1.4, 5.9, 0)),  # 0
    Part.ArcOfCircle(Part.Circle(V(0, 4.5, 0), V(0, 0, 1), 2), math.radians(45), math.radians(135)),  # 1
    Part.LineSegment(V(-1.4, 5.9, 0), V(-9.9, -2.6, 0)),  # 2
    Part.ArcOfCircle(Part.Circle(V(-8.5, -4, 0), V(0, 0, 1), 2), math.radians(135), math.radians(225)),  # 3
    Part.LineSegment(V(-9.9, -5.4, 0), V(-1.4, -13.9, 0)),  # 4
    Part.ArcOfCircle(Part.Circle(V(0, -12.5, 0), V(0, 0, 1), 2), math.radians(-135), math.radians(-45)),  # 5
    Part.LineSegment(V(1.4, -13.9, 0), V(9.9, -5.4, 0)),  # 6
    Part.ArcOfCircle(Part.Circle(V(8.5, -4, 0), V(0, 0, 1), 2), math.radians(-45), math.radians(45)),  # 7
], False)
sketch7.addConstraint([
    Sketcher.Constraint("Tangent", 0, 2, 1, 1),
    Sketcher.Constraint("Tangent", 1, 2, 2, 1),
    Sketcher.Constraint("Tangent", 2, 2, 3, 1),
    Sketcher.Constraint("Tangent", 3, 2, 4, 1),
    Sketcher.Constraint("Tangent", 4, 2, 5, 1),
    Sketcher.Constraint("Tangent", 5, 2, 6, 1),
    Sketcher.Constraint("Tangent", 6, 2, 7, 1),
    Sketcher.Constraint("Tangent", 7, 2, 0, 1),
    Sketcher.Constraint("Equal", 1, 3),
    Sketcher.Constraint("Equal", 3, 5),
    Sketcher.Constraint("Equal", 5, 7),
    Sketcher.Constraint("Symmetric", 3, 3, 7, 3, -2),
    Sketcher.Constraint("PointOnObject", 1, 3, -2),
    Sketcher.Constraint("PointOnObject", 5, 3, -2),
    Sketcher.Constraint("Perpendicular", 0, 2),
    Sketcher.Constraint("Perpendicular", 2, 4),
    Sketcher.Constraint("Radius", 1, Q("2 mm")),
    Sketcher.Constraint("Distance", 0, Q("12 mm")),
    Sketcher.Constraint("DistanceY", 3, 3, -1, 1, Q("4 mm")),
])
pocket4 = body.newObject("PartDesign::Pocket", "Pocket003")
pocket4.Profile = sketch7
pocket4.Type = "UpToFirst"

# Sketch on XZ plane
sketch8 = body.newObject("Sketcher::SketchObject", "Sketch007")
sketch8.AttachmentSupport = (doc.getObject("XZ_Plane"), [""])
sketch8.MapMode = "FlatFace"
sketch8.AttachmentOffset = App.Placement(V(0, 0, -30), App.Rotation())
sketch8.addGeometry([
    Part.LineSegment(V(-1.5, 46.1, 0), V(-7.8, 39.8, 0)),  # 0
    Part.ArcOfCircle(Part.Circle(V(0, 32, 0), V(0, 0, 1), 11), math.radians(135), math.radians(180)),  # 1
    Part.LineSegment(V(-11, 32, 0), V(-11, 52, 0)),  # 2
    Part.LineSegment(V(-11, 52, 0), V(11, 52, 0)),  # 3
    Part.LineSegment(V(11, 52, 0), V(11, 32, 0)),  # 4
    Part.ArcOfCircle(Part.Circle(V(0, 32, 0), V(0, 0, 1), 11), math.radians(0), math.radians(45)),  # 5
    Part.LineSegment(V(7.8, 39.8, 0), V(1.5, 46.1, 0)),  # 6
    Part.LineSegment(V(1.5, 46.1, 0), V(-1.5, 46.1, 0)),  # 7
], False)
sketch8.addConstraint([
    Sketcher.Constraint("Tangent", 0, 2, 1, 1),
    Sketcher.Constraint("Tangent", 1, 2, 2, 1),
    Sketcher.Constraint("Coincident", 2, 2, 3, 1),
    Sketcher.Constraint("Coincident", 3, 2, 4, 1),
    Sketcher.Constraint("Tangent", 4, 2, 5, 1),
    Sketcher.Constraint("Tangent", 5, 2, 6, 1),
    Sketcher.Constraint("Coincident", 6, 2, 7, 1),
    Sketcher.Constraint("Coincident", 7, 2, 0, 1),
    Sketcher.Constraint("Vertical", 2),
    Sketcher.Constraint("Horizontal", 3),
    Sketcher.Constraint("Vertical", 4),
    Sketcher.Constraint("Horizontal", 7),
    Sketcher.Constraint("Coincident", 5, 3, 1, 3),
    Sketcher.Constraint("Equal", 1, 5),
    Sketcher.Constraint("Symmetric", 0, 2, 5, 2, -2),
    Sketcher.Constraint("Perpendicular", 0, 6),
    Sketcher.Constraint("Radius", 1, Q("11 mm")),
    Sketcher.Constraint("DistanceX", 7, 2, 7, 1, Q("3 mm")),
    Sketcher.Constraint("DistanceY", 2, 1, 2, 2, Q("20 mm")),
    Sketcher.Constraint("DistanceY", -1, 1, 1, 3, Q("32 mm")),
])
pad3 = body.newObject("PartDesign::Pad", "Pad002")
pad3.Profile = sketch8
pad3.Length = 6
doc.recompute()

fillet2 = body.newObject("PartDesign::Fillet", "Fillet001")
fillet2.Base = (pad3, edges_at(pad3, [
    (-23, 25, 2),
    (-23, 30, 26),
    (-11, 16, 2),
    (11, 16, 2),
    (23, 25, 2),
    (23, 30, 26),
]))
fillet2.Radius = 2
doc.recompute()

fillet3 = body.newObject("PartDesign::Fillet", "Fillet002")
fillet3.Base = (fillet2, edges_at(fillet2, [
    (11, 30, 16),
    (-11, 30, 16),
    (-10.163, 30, 36.21),
    (10.163, 30, 36.21),
    (4.639, 30, 42.917),
    (0, 30, 46.056),
    (-4.639, 30, 42.917),
]))
fillet3.Radius = 1
doc.recompute()

fillet4 = body.newObject("PartDesign::Fillet", "Fillet003")
fillet4.Base = (fillet3, edges_at(fillet3, [
    (-20, 24, 28),
    (11, 24, 18),
    (-11, 24, 18),
    (-10.163, 24, 36.21),
    (-4.639, 24, 42.917),
    (0, 24, 46.056),
    (4.639, 24, 42.917),
    (10.163, 24, 36.21),
    (20, 24, 28),
    (-23, -7.5, 28),
    (-20, -7.5, 28),
    (20, -7.5, 28),
    (23, -7.5, 28),
]))
fillet4.Radius = 1

doc.recompute()
